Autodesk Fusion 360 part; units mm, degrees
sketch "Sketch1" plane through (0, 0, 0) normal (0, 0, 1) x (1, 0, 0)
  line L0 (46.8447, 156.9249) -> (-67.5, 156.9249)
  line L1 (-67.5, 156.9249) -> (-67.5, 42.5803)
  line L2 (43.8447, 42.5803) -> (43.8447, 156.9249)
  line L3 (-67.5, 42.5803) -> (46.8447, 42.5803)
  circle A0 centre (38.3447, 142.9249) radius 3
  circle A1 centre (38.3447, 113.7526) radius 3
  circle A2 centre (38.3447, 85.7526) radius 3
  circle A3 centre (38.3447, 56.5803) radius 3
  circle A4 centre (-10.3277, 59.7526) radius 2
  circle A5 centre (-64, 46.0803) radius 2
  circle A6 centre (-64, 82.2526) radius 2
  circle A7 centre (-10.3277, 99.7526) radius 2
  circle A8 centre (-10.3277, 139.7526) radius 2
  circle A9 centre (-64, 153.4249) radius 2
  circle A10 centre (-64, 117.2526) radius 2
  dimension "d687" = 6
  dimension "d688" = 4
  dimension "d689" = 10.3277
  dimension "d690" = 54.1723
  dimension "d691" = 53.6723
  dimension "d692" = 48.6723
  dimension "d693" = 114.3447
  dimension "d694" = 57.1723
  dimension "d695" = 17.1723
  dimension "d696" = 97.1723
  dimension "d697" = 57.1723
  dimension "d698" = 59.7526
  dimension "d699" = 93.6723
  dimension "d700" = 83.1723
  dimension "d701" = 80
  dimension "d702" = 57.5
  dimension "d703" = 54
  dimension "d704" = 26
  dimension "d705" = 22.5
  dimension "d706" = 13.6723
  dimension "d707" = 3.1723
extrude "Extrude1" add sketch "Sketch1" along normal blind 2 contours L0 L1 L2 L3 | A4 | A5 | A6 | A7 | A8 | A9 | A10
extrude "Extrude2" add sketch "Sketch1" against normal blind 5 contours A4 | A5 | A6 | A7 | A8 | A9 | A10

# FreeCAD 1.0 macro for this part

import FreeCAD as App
import Part
import Sketcher

doc = App.newDocument("Part")
body = doc.addObject("PartDesign::Body", "Body")

# Sketch on XY plane
sketch1 = body.newObject("Sketcher::SketchObject", "Sketch")
sketch1.AttachmentSupport = (doc.getObject("XY_Plane"), [""])
sketch1.MapMode = "FlatFace"
sketch1.addGeometry(Part.LineSegment(App.Vector(43.8447, 42.5803, 0), App.Vector(43.8447, 156.9249, 0)), False)
sketch1.addGeometry(Part.LineSegment(App.Vector(43.8447, 156.9249, 0), App.Vector(-67.5, 156.9249, 0)), False)
sketch1.addGeometry(Part.LineSegment(App.Vector(-67.5, 156.9249, 0), App.Vector(-67.5, 42.5803, 0)), False)
sketch1.addGeometry(Part.LineSegment(App.Vector(-67.5, 42.5803, 0), App.Vector(43.8447, 42.5803, 0)), False)
sketch1.addGeometry(Part.Circle(App.Vector(38.3447, 56.5803, 0), App.Vector(0, 0, 1), 3), False)
sketch1.addGeometry(Part.Circle(App.Vector(38.3447, 85.7526, 0), App.Vector(0, 0, 1), 3), False)
sketch1.addGeometry(Part.Circle(App.Vector(38.3447, 113.7526, 0), App.Vector(0, 0, 1), 3), False)
sketch1.addGeometry(Part.Circle(App.Vector(38.3447, 142.9249, 0), App.Vector(0, 0, 1), 3), False)
sketch1.addConstraint(Sketcher.Constraint("Coincident", 0, 2, 1, 1))
sketch1.addConstraint(Sketcher.Constraint("Coincident", 1, 2, 2, 1))
sketch1.addConstraint(Sketcher.Constraint("Coincident", 2, 2, 3, 1))
sketch1.addConstraint(Sketcher.Constraint("Coincident", 3, 2, 0, 1))
sketch1.addConstraint(Sketcher.Constraint("Vertical", 0))
sketch1.addConstraint(Sketcher.Constraint("Horizontal", 1))
sketch1.addConstraint(Sketcher.Constraint("Vertical", 2))
sketch1.addConstraint(Sketcher.Constraint("Horizontal", 3))
sketch1.addConstraint(Sketcher.Constraint("Equal", 4, 5))
sketch1.addConstraint(Sketcher.Constraint("Equal", 5, 6))
sketch1.addConstraint(Sketcher.Constraint("Equal", 6, 7))
sketch1.addConstraint(Sketcher.Constraint("Vertical", 4, 3, 5, 3))
sketch1.addConstraint(Sketcher.Constraint("Vertical", 5, 3, 6, 3))
sketch1.addConstraint(Sketcher.Constraint("Vertical", 6, 3, 7, 3))
sketch1.addConstraint(Sketcher.Constraint("Diameter", 4, 6.0))
sketch1.addConstraint(Sketcher.Constraint("DistanceY", 0, 1, 0, 2, 114.3446))
sketch1.addConstraint(Sketcher.Constraint("DistanceY", 5, 3, 6, 3, 28.0))
sketch1.addConstraint(Sketcher.Constraint("DistanceY", 7, 3, 0, 2, 14.0))
sketch1.addConstraint(Sketcher.Constraint("DistanceY", 2, 2, 4, 3, 14.0))
sketch1.addConstraint(Sketcher.Constraint("DistanceX", 1, 2, -1, 1, 67.5))
sketch1.addConstraint(Sketcher.Constraint("DistanceY", 4, 3, 6, 3, 57.1723))
sketch1.addConstraint(Sketcher.Constraint("DistanceX", 7, 3, 0, 2, 5.5))
sketch1.addConstraint(Sketcher.Constraint("DistanceX", 1, 2, 1, 1, 111.3447))
sketch1.addConstraint(Sketcher.Constraint("DistanceY", -1, 1, 7, 3, 142.925))
pad1 = body.newObject("PartDesign::Pad", "Pad")
pad1.Profile = sketch1
pad1.Length = 2

# Sketch on XY plane
sketch2 = body.newObject("Sketcher::SketchObject", "Sketch001")
sketch2.AttachmentSupport = (doc.getObject("XY_Plane"), [""])
sketch2.MapMode = "FlatFace"
sketch2.addGeometry(Part.Circle(App.Vector(-10.3277, 59.7526, 0), App.Vector(0, 0, 1), 2), False)
sketch2.addGeometry(Part.Circle(App.Vector(-64, 46.0803, 0), App.Vector(0, 0, 1), 2), False)
sketch2.addGeometry(Part.Circle(App.Vector(-64, 82.2526, 0), App.Vector(0, 0, 1), 2), False)
sketch2.addGeometry(Part.Circle(App.Vector(-10.3277, 99.7526, 0), App.Vector(0, 0, 1), 2), False)
sketch2.addGeometry(Part.Circle(App.Vector(-10.3277, 139.7526, 0), App.Vector(0, 0, 1), 2), False)
sketch2.addGeometry(Part.Circle(App.Vector(-64, 153.4249, 0), App.Vector(0, 0, 1), 2), False)
sketch2.addGeometry(Part.Circle(App.Vector(-64, 117.2526, 0), App.Vector(0, 0, 1), 2), False)
sketch2.addConstraint(Sketcher.Constraint("Equal", 0, 1))
sketch2.addConstraint(Sketcher.Constraint("Equal", 1, 2))
sketch2.addConstraint(Sketcher.Constraint("Equal", 2, 3))
sketch2.addConstraint(Sketcher.Constraint("Equal", 3, 4))
sketch2.addConstraint(Sketcher.Constraint("Equal", 4, 5))
sketch2.addConstraint(Sketcher.Constraint("Equal", 5, 6))
sketch2.addConstraint(Sketcher.Constraint("Vertical", 1, 3, 2, 3))
sketch2.addConstraint(Sketcher.Constraint("Vertical", 0, 3, 3, 3))
sketch2.addConstraint(Sketcher.Constraint("Vertical", 3, 3, 4, 3))
sketch2.addConstraint(Sketcher.Constraint("Vertical", 2, 3, 5, 3))
sketch2.addConstraint(Sketcher.Constraint("Vertical", 5, 3, 6, 3))
sketch2.addConstraint(Sketcher.Constraint("Diameter", 0, 4.0))
sketch2.addConstraint(Sketcher.Constraint("DistanceY", 0, 3, 4, 3, 80.0))
sketch2.addConstraint(Sketcher.Constraint("DistanceY", 0, 3, 2, 3, 22.5))
sketch2.addConstraint(Sketcher.Constraint("DistanceY", 6, 3, 4, 3, 22.5))
sketch2.addConstraint(Sketcher.Constraint("DistanceX", 1, 3, -1, 1, 64.0))
sketch2.addConstraint(Sketcher.Constraint("DistanceY", 0, 3, 3, 3, 40.0))
sketch2.addConstraint(Sketcher.Constraint("DistanceX", 0, 3, -1, 1, 10.3277))
sketch2.addConstraint(Sketcher.Constraint("DistanceY", -1, 1, 0, 3, 59.7526))
sketch2.addConstraint(Sketcher.Constraint("DistanceY", 1, 3, 0, 3, 13.6723))
sketch2.addConstraint(Sketcher.Constraint("DistanceY", 4, 3, 5, 3, 13.6723))
pad2 = body.newObject("PartDesign::Pad", "Pad001")
pad2.Profile = sketch2
pad2.Length = 5
pad2.Reversed = True

doc.recompute()
